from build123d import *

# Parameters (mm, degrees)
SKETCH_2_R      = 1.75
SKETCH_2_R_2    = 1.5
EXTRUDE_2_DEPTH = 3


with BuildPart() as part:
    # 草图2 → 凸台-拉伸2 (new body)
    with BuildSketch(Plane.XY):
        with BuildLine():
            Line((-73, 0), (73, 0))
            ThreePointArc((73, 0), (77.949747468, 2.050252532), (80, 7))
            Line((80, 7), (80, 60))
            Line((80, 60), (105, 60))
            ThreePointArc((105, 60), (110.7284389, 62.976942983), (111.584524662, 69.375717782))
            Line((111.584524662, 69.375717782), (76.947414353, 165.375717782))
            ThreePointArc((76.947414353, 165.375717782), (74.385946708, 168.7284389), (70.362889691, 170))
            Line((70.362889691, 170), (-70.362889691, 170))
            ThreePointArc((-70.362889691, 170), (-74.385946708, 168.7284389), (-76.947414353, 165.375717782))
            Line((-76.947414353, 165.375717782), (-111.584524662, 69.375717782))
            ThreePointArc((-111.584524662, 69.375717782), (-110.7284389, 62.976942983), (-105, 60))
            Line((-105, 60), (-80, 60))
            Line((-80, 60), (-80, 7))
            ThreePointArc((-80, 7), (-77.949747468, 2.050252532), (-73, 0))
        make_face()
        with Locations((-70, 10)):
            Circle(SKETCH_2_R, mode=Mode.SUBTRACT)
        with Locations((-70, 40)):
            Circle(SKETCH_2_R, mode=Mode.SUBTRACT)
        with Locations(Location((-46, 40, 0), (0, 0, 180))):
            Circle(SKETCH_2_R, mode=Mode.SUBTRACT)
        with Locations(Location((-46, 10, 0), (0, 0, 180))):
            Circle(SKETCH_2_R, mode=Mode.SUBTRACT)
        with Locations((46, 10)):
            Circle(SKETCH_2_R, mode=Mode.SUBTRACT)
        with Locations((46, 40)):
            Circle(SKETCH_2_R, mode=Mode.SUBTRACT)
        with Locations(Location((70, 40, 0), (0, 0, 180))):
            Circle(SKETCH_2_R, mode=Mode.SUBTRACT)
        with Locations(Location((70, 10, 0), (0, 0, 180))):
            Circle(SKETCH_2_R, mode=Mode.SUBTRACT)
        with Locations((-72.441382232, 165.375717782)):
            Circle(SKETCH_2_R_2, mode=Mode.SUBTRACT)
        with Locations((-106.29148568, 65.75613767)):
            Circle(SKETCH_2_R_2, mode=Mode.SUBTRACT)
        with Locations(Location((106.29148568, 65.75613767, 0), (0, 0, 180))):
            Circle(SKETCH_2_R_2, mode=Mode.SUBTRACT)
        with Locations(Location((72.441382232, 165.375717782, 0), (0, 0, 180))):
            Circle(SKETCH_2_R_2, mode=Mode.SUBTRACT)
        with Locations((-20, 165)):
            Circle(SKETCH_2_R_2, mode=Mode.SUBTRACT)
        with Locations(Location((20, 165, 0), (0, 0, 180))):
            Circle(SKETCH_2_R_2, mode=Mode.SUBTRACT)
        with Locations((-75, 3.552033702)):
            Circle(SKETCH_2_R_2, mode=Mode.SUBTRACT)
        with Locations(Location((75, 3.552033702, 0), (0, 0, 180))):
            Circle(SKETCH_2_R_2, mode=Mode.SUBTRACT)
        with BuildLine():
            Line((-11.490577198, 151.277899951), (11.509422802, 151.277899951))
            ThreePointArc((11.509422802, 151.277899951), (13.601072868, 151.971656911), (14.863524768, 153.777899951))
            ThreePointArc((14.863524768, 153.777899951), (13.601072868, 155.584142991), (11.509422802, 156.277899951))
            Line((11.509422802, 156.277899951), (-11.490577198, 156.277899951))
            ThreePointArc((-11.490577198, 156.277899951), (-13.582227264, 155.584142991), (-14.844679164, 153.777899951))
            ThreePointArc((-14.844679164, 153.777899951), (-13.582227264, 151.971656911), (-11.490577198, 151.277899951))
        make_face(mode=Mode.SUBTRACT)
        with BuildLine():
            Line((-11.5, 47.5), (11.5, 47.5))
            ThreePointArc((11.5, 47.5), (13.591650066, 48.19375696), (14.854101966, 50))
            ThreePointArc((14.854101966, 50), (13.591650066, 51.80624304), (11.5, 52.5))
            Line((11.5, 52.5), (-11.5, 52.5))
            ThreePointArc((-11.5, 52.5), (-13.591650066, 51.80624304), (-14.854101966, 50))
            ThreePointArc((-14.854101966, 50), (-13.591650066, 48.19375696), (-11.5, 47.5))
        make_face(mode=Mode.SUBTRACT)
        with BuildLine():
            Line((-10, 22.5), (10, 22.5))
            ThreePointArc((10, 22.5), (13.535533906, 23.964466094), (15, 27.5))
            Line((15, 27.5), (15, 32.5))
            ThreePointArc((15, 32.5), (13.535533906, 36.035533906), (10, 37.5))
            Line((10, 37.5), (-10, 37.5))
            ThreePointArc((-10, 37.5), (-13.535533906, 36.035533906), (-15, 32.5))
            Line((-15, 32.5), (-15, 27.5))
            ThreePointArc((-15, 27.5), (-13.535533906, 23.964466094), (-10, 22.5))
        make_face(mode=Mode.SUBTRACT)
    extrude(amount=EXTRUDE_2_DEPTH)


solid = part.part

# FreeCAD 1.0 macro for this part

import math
import FreeCAD as App
import Part
import Sketcher
from FreeCAD import Vector

doc = App.newDocument("Part")
body = doc.addObject("PartDesign::Body", "Body")

# Sketch on XY plane
sketch1 = body.newObject("Sketcher::SketchObject", "Sketch")
sketch1.AttachmentSupport = (doc.getObject("XY_Plane"), [""])
sketch1.MapMode = "FlatFace"
sketch1.addGeometry(Part.LineSegment(Vector(-73, 0, 0), Vector(73, 0, 0)), False)
sketch1.addGeometry(Part.ArcOfCircle(Part.Circle(Vector(73, 7, 0), Vector(0, 0, 1), 7), math.radians(-90), math.radians(0)), False)
sketch1.addGeometry(Part.LineSegment(Vector(80, 7, 0), Vector(80, 60, 0)), False)
sketch1.addGeometry(Part.LineSegment(Vector(80, 60, 0), Vector(105, 60, 0)), False)
sketch1.addGeometry(Part.ArcOfCircle(Part.Circle(Vector(105, 67, 0), Vector(0, 0, 1), 7), math.radians(-90), math.radians(20)), False)
sketch1.addGeometry(Part.LineSegment(Vector(111.6, 69.4, 0), Vector(76.9, 165.4, 0)), False)
sketch1.addGeometry(Part.ArcOfCircle(Part.Circle(Vector(70.4, 163, 0), Vector(0, 0, 1), 7), math.radians(20), math.radians(90)), False)
sketch1.addGeometry(Part.LineSegment(Vector(70.4, 170, 0), Vector(-70.4, 170, 0)), False)
sketch1.addGeometry(Part.ArcOfCircle(Part.Circle(Vector(-70.4, 163, 0), Vector(0, 0, 1), 7), math.radians(90), math.radians(160)), False)
sketch1.addGeometry(Part.LineSegment(Vector(-76.9, 165.4, 0), Vector(-111.6, 69.4, 0)), False)
sketch1.addGeometry(Part.ArcOfCircle(Part.Circle(Vector(-105, 67, 0), Vector(0, 0, 1), 7), math.radians(160), math.radians(270)), False)
sketch1.addGeometry(Part.LineSegment(Vector(-105, 60, 0), Vector(-80, 60, 0)), False)
sketch1.addGeometry(Part.LineSegment(Vector(-80, 60, 0), Vector(-80, 7, 0)), False)
sketch1.addGeometry(Part.ArcOfCircle(Part.Circle(Vector(-73, 7, 0), Vector(0, 0, 1), 7), math.radians(-180), math.radians(-90)), False)
sketch1.addGeometry(Part.Circle(Vector(-75, 3.6, 0), Vector(0, 0, 1), 1.5), False)
sketch1.addGeometry(Part.Circle(Vector(-70, 10, 0), Vector(0, 0, 1), 1.8), False)
sketch1.addGeometry(Part.Circle(Vector(-70, 40, 0), Vector(0, 0, 1), 1.8), False)
sketch1.addGeometry(Part.Circle(Vector(-46, 10, 0), Vector(0, 0, 1), 1.8), False)
sketch1.addGeometry(Part.Circle(Vector(-46, 40, 0), Vector(0, 0, 1), 1.8), False)
sketch1.addGeometry(Part.Circle(Vector(-106.3, 65.8, 0), Vector(0, 0, 1), 1.5), False)
sketch1.addGeometry(Part.Circle(Vector(46, 10, 0), Vector(0, 0, 1), 1.8), False)
sketch1.addGeometry(Part.LineSegment(Vector(10, 22.5, 0), Vector(-10, 22.5, 0)), False)
sketch1.addGeometry(Part.ArcOfCircle(Part.Circle(Vector(-10, 27.5, 0), Vector(0, 0, 1), 5), math.radians(180), math.radians(270)), False)
sketch1.addGeometry(Part.LineSegment(Vector(-15, 27.5, 0), Vector(-15, 32.5, 0)), False)
sketch1.addGeometry(Part.ArcOfCircle(Part.Circle(Vector(-10, 32.5, 0), Vector(0, 0, 1), 5), math.radians(90), math.radians(180)), False)
sketch1.addGeometry(Part.LineSegment(Vector(-10, 37.5, 0), Vector(10, 37.5, 0)), False)
sketch1.addGeometry(Part.ArcOfCircle(Part.Circle(Vector(10, 32.5, 0), Vector(0, 0, 1), 5), math.radians(0), math.radians(90)), False)
sketch1.addGeometry(Part.LineSegment(Vector(15, 32.5, 0), Vector(15, 27.5, 0)), False)
sketch1.addGeometry(Part.ArcOfCircle(Part.Circle(Vector(10, 27.5, 0), Vector(0, 0, 1), 5), math.radians(-90), math.radians(0)), False)
sketch1.addGeometry(Part.Circle(Vector(46, 40, 0), Vector(0, 0, 1), 1.8), False)
sketch1.addGeometry(Part.Circle(Vector(75, 3.6, 0), Vector(0, 0, 1), 1.5), False)
sketch1.addGeometry(Part.Circle(Vector(70, 10, 0), Vector(0, 0, 1), 1.8), False)
sketch1.addGeometry(Part.Circle(Vector(70, 40, 0), Vector(0, 0, 1), 1.8), False)
sketch1.addGeometry(Part.LineSegment(Vector(11.5, 47.5, 0), Vector(-11.5, 47.5, 0)), False)
sketch1.addGeometry(Part.ArcOfCircle(Part.Circle(Vector(-11.5, 51, 0), Vector(0, 0, 1), 3.5), math.radians(-163), math.radians(-90)), False)
sketch1.addGeometry(Part.ArcOfCircle(Part.Circle(Vector(-11.5, 49, 0), Vector(0, 0, 1), 3.5), math.radians(90), math.radians(163)), False)
sketch1.addGeometry(Part.LineSegment(Vector(-11.5, 52.5, 0), Vector(11.5, 52.5, 0)), False)
sketch1.addGeometry(Part.ArcOfCircle(Part.Circle(Vector(11.5, 49, 0), Vector(0, 0, 1), 3.5), math.radians(17), math.radians(90)), False)
sketch1.addGeometry(Part.ArcOfCircle(Part.Circle(Vector(11.5, 51, 0), Vector(0, 0, 1), 3.5), math.radians(-90), math.radians(-17)), False)
sketch1.addGeometry(Part.Circle(Vector(106.3, 65.8, 0), Vector(0, 0, 1), 1.5), False)
sketch1.addGeometry(Part.Circle(Vector(-72.4, 165.4, 0), Vector(0, 0, 1), 1.5), False)
sketch1.addGeometry(Part.Circle(Vector(-20, 165, 0), Vector(0, 0, 1), 1.5), False)
sketch1.addGeometry(Part.LineSegment(Vector(11.5, 151.3, 0), Vector(-11.5, 151.3, 0)), False)
sketch1.addGeometry(Part.ArcOfCircle(Part.Circle(Vector(-11.5, 154.8, 0), Vector(0, 0, 1), 3.5), math.radians(-163), math.radians(-90)), False)
sketch1.addGeometry(Part.ArcOfCircle(Part.Circle(Vector(-11.5, 152.8, 0), Vector(0, 0, 1), 3.5), math.radians(90), math.radians(163)), False)
sketch1.addGeometry(Part.LineSegment(Vector(-11.5, 156.3, 0), Vector(11.5, 156.3, 0)), False)
sketch1.addGeometry(Part.ArcOfCircle(Part.Circle(Vector(11.5, 152.8, 0), Vector(0, 0, 1), 3.5), math.radians(17), math.radians(90)), False)
sketch1.addGeometry(Part.ArcOfCircle(Part.Circle(Vector(11.5, 154.8, 0), Vector(0, 0, 1), 3.5), math.radians(-90), math.radians(-17)), False)
sketch1.addGeometry(Part.Circle(Vector(20, 165, 0), Vector(0, 0, 1), 1.5), False)
sketch1.addGeometry(Part.Circle(Vector(72.4, 165.4, 0), Vector(0, 0, 1), 1.5), False)
sketch1.addConstraint(Sketcher.Constraint("Tangent", 0, 2, 1, 1))
sketch1.addConstraint(Sketcher.Constraint("Tangent", 1, 2, 2, 1))
sketch1.addConstraint(Sketcher.Constraint("Coincident", 2, 2, 3, 1))
sketch1.addConstraint(Sketcher.Constraint("Tangent", 3, 2, 4, 1))
sketch1.addConstraint(Sketcher.Constraint("Tangent", 4, 2, 5, 1))
sketch1.addConstraint(Sketcher.Constraint("Tangent", 5, 2, 6, 1))
sketch1.addConstraint(Sketcher.Constraint("Tangent", 6, 2, 7, 1))
sketch1.addConstraint(Sketcher.Constraint("Tangent", 7, 2, 8, 1))
sketch1.addConstraint(Sketcher.Constraint("Tangent", 8, 2, 9, 1))
sketch1.addConstraint(Sketcher.Constraint("Tangent", 9, 2, 10, 1))
sketch1.addConstraint(Sketcher.Constraint("Tangent", 10, 2, 11, 1))
sketch1.addConstraint(Sketcher.Constraint("Coincident", 11, 2, 12, 1))
sketch1.addConstraint(Sketcher.Constraint("Tangent", 12, 2, 13, 1))
sketch1.addConstraint(Sketcher.Constraint("Tangent", 13, 2, 0, 1))
sketch1.addConstraint(Sketcher.Constraint("Tangent", 21, 2, 22, 2))
sketch1.addConstraint(Sketcher.Constraint("Tangent", 22, 1, 23, 1))
sketch1.addConstraint(Sketcher.Constraint("Tangent", 23, 2, 24, 2))
sketch1.addConstraint(Sketcher.Constraint("Tangent", 24, 1, 25, 1))
sketch1.addConstraint(Sketcher.Constraint("Tangent", 25, 2, 26, 2))
sketch1.addConstraint(Sketcher.Constraint("Tangent", 26, 1, 27, 1))
sketch1.addConstraint(Sketcher.Constraint("Tangent", 27, 2, 28, 2))
sketch1.addConstraint(Sketcher.Constraint("Tangent", 28, 1, 21, 1))
sketch1.addConstraint(Sketcher.Constraint("Tangent", 33, 2, 34, 2))
sketch1.addConstraint(Sketcher.Constraint("Coincident", 34, 1, 35, 2))
sketch1.addConstraint(Sketcher.Constraint("Tangent", 35, 1, 36, 1))
sketch1.addConstraint(Sketcher.Constraint("Tangent", 36, 2, 37, 2))
sketch1.addConstraint(Sketcher.Constraint("Coincident", 37, 1, 38, 2))
sketch1.addConstraint(Sketcher.Constraint("Tangent", 38, 1, 33, 1))
sketch1.addConstraint(Sketcher.Constraint("Tangent", 42, 2, 43, 2))
sketch1.addConstraint(Sketcher.Constraint("Coincident", 43, 1, 44, 2))
sketch1.addConstraint(Sketcher.Constraint("Tangent", 44, 1, 45, 1))
sketch1.addConstraint(Sketcher.Constraint("Tangent", 45, 2, 46, 2))
sketch1.addConstraint(Sketcher.Constraint("Coincident", 46, 1, 47, 2))
sketch1.addConstraint(Sketcher.Constraint("Tangent", 47, 1, 42, 1))
sketch1.addConstraint(Sketcher.Constraint("Horizontal", 0))
sketch1.addConstraint(Sketcher.Constraint("Vertical", 2))
sketch1.addConstraint(Sketcher.Constraint("Horizontal", 3))
sketch1.addConstraint(Sketcher.Constraint("Horizontal", 7))
sketch1.addConstraint(Sketcher.Constraint("Horizontal", 11))
sketch1.addConstraint(Sketcher.Constraint("Vertical", 12))
sketch1.addConstraint(Sketcher.Constraint("Horizontal", 21))
sketch1.addConstraint(Sketcher.Constraint("Vertical", 23))
sketch1.addConstraint(Sketcher.Constraint("Horizontal", 25))
sketch1.addConstraint(Sketcher.Constraint("Vertical", 27))
sketch1.addConstraint(Sketcher.Constraint("Horizontal", 33))
sketch1.addConstraint(Sketcher.Constraint("Horizontal", 36))
sketch1.addConstraint(Sketcher.Constraint("Horizontal", 42))
sketch1.addConstraint(Sketcher.Constraint("Horizontal", 45))
sketch1.addConstraint(Sketcher.Constraint("Equal", 1, 4))
sketch1.addConstraint(Sketcher.Constraint("Equal", 4, 6))
sketch1.addConstraint(Sketcher.Constraint("Equal", 6, 8))
sketch1.addConstraint(Sketcher.Constraint("Equal", 8, 10))
sketch1.addConstraint(Sketcher.Constraint("Equal", 10, 13))
sketch1.addConstraint(Sketcher.Constraint("Equal", 15, 16))
sketch1.addConstraint(Sketcher.Constraint("Equal", 16, 17))
sketch1.addConstraint(Sketcher.Constraint("Equal", 17, 18))
sketch1.addConstraint(Sketcher.Constraint("Equal", 14, 19))
sketch1.addConstraint(Sketcher.Constraint("Equal", 18, 20))
sketch1.addConstraint(Sketcher.Constraint("Equal", 22, 24))
sketch1.addConstraint(Sketcher.Constraint("Equal", 24, 26))
sketch1.addConstraint(Sketcher.Constraint("Equal", 26, 28))
sketch1.addConstraint(Sketcher.Constraint("Equal", 20, 29))
sketch1.addConstraint(Sketcher.Constraint("Equal", 19, 30))
sketch1.addConstraint(Sketcher.Constraint("Equal", 29, 31))
sketch1.addConstraint(Sketcher.Constraint("Equal", 31, 32))
sketch1.addConstraint(Sketcher.Constraint("Equal", 34, 35))
sketch1.addConstraint(Sketcher.Constraint("Equal", 35, 37))
sketch1.addConstraint(Sketcher.Constraint("Equal", 37, 38))
sketch1.addConstraint(Sketcher.Constraint("Equal", 30, 39))
sketch1.addConstraint(Sketcher.Constraint("Equal", 39, 40))
sketch1.addConstraint(Sketcher.Constraint("Equal", 40, 41))
sketch1.addConstraint(Sketcher.Constraint("Equal", 38, 43))
sketch1.addConstraint(Sketcher.Constraint("Equal", 43, 44))
sketch1.addConstraint(Sketcher.Constraint("Equal", 44, 46))
sketch1.addConstraint(Sketcher.Constraint("Equal", 46, 47))
sketch1.addConstraint(Sketcher.Constraint("Equal", 41, 48))
sketch1.addConstraint(Sketcher.Constraint("Equal", 48, 49))
sketch1.addConstraint(Sketcher.Constraint("Symmetric", 0, 2, 13, 2, -1, 1))
sketch1.addConstraint(Sketcher.Constraint("Symmetric", 4, 3, 10, 3, -2))
sketch1.addConstraint(Sketcher.Constraint("Symmetric", 17, 3, 20, 3, -2))
sketch1.addConstraint(Sketcher.Constraint("Symmetric", 18, 3, 29, 3, -2))
sketch1.addConstraint(Sketcher.Constraint("Symmetric", 14, 3, 30, 3, -2))
sketch1.addConstraint(Sketcher.Constraint("Symmetric", 15, 3, 31, 3, -2))
sketch1.addConstraint(Sketcher.Constraint("Symmetric", 16, 3, 32, 3, -2))
sketch1.addConstraint(Sketcher.Constraint("Symmetric", 19, 3, 39, 3, -2))
sketch1.addConstraint(Sketcher.Constraint("Symmetric", 41, 3, 48, 3, -2))
sketch1.addConstraint(Sketcher.Constraint("Symmetric", 40, 3, 49, 3, -2))
sketch1.addConstraint(Sketcher.Constraint("Symmetric", 34, 1, 37, 1, -2))
sketch1.addConstraint(Sketcher.Constraint("Horizontal", 15, 3, 17, 3))
sketch1.addConstraint(Sketcher.Constraint("Horizontal", 16, 3, 18, 3))
sketch1.addConstraint(Sketcher.Constraint("Horizontal", 49, 3, 5, 2))
sketch1.addConstraint(Sketcher.Constraint("Horizontal", 5, 2, 8, 2))
sketch1.addConstraint(Sketcher.Constraint("Horizontal", 43, 1, 46, 1))
sketch1.addConstraint(Sketcher.Constraint("Vertical", 15, 3, 16, 3))
sketch1.addConstraint(Sketcher.Constraint("Vertical", 17, 3, 18, 3))
sketch1.addConstraint(Sketcher.Constraint("Vertical", 34, 3, 35, 3))
sketch1.addConstraint(Sketcher.Constraint("Vertical", 43, 3, 44, 3))
sketch1.addConstraint(Sketcher.Constraint("Equal", 36, 42))
sketch1.addConstraint(Sketcher.Constraint("Diameter", 14, 3.0))
sketch1.addConstraint(Sketcher.Constraint("Radius", 1, 7.0))
sketch1.addConstraint(Sketcher.Constraint("Radius", 22, 5.0))
sketch1.addConstraint(Sketcher.Constraint("Diameter", 15, 3.5))
sketch1.addConstraint(Sketcher.Constraint("Radius", 34, 3.5))
sketch1.addConstraint(Sketcher.Constraint("DistanceX", 0, 1, 0, 2, 146.0))
sketch1.addConstraint(Sketcher.Constraint("DistanceX", 3, 1, 3, 2, 25.0))
sketch1.addConstraint(Sketcher.Constraint("DistanceX", 21, 2, 21, 1, 20.0))
sketch1.addConstraint(Sketcher.Constraint("DistanceX", 33, 2, 33, 1, 23.0))
sketch1.addConstraint(Sketcher.Constraint("DistanceY", 2, 1, 2, 2, 53.0))
sketch1.addConstraint(Sketcher.Constraint("DistanceY", 23, 1, 23, 2, 5.0))
sketch1.addConstraint(Sketcher.Constraint("DistanceY", -1, 1, 6, 3, 163.0))
sketch1.addConstraint(Sketcher.Constraint("DistanceX", 14, 3, -1, 1, 75.0))
sketch1.addConstraint(Sketcher.Constraint("DistanceX", 15, 3, -1, 1, 70.0))
sketch1.addConstraint(Sketcher.Constraint("DistanceY", -1, 1, 15, 3, 10.0))
sketch1.addConstraint(Sketcher.Constraint("DistanceY", -1, 1, 16, 3, 40.0))
sketch1.addConstraint(Sketcher.Constraint("DistanceX", 17, 3, -1, 1, 46.0))
sketch1.addConstraint(Sketcher.Constraint("DistanceX", 22, 3, -1, 1, 10.0))
sketch1.addConstraint(Sketcher.Constraint("DistanceY", -1, 1, 34, 3, 51.0))
sketch1.addConstraint(Sketcher.Constraint("DistanceY", -1, 1, 35, 3, 49.0))
sketch1.addConstraint(Sketcher.Constraint("DistanceX", 41, 3, -1, 1, 20.0))
sketch1.addConstraint(Sketcher.Constraint("DistanceY", -1, 1, 41, 3, 165.0))
sketch1.addConstraint(Sketcher.Constraint("DistanceY", -1, 1, 22, 3, 27.5))
sketch1.addConstraint(Sketcher.Constraint("DistanceX", 7, 2, 7, 1, 140.725779))
sketch1.addConstraint(Sketcher.Constraint("DistanceY", -1, 1, 43, 3, 154.7779))
sketch1.addConstraint(Sketcher.Constraint("DistanceY", -1, 1, 44, 3, 152.7779))
sketch1.addConstraint(Sketcher.Constraint("DistanceX", 43, 1, -1, 1, 14.844679))
sketch1.addConstraint(Sketcher.Constraint("DistanceY", -1, 1, 14, 3, 3.552034))
sketch1.addConstraint(Sketcher.Constraint("DistanceX", 19, 3, -1, 1, 106.291486))
sketch1.addConstraint(Sketcher.Constraint("DistanceY", -1, 1, 19, 3, 65.756138))
sketch1.addConstraint(Sketcher.Constraint("DistanceX", 40, 3, -1, 1, 72.441382))
pad1 = body.newObject("PartDesign::Pad", "Pad")
pad1.Profile = sketch1
pad1.Length = 3

doc.recompute()
